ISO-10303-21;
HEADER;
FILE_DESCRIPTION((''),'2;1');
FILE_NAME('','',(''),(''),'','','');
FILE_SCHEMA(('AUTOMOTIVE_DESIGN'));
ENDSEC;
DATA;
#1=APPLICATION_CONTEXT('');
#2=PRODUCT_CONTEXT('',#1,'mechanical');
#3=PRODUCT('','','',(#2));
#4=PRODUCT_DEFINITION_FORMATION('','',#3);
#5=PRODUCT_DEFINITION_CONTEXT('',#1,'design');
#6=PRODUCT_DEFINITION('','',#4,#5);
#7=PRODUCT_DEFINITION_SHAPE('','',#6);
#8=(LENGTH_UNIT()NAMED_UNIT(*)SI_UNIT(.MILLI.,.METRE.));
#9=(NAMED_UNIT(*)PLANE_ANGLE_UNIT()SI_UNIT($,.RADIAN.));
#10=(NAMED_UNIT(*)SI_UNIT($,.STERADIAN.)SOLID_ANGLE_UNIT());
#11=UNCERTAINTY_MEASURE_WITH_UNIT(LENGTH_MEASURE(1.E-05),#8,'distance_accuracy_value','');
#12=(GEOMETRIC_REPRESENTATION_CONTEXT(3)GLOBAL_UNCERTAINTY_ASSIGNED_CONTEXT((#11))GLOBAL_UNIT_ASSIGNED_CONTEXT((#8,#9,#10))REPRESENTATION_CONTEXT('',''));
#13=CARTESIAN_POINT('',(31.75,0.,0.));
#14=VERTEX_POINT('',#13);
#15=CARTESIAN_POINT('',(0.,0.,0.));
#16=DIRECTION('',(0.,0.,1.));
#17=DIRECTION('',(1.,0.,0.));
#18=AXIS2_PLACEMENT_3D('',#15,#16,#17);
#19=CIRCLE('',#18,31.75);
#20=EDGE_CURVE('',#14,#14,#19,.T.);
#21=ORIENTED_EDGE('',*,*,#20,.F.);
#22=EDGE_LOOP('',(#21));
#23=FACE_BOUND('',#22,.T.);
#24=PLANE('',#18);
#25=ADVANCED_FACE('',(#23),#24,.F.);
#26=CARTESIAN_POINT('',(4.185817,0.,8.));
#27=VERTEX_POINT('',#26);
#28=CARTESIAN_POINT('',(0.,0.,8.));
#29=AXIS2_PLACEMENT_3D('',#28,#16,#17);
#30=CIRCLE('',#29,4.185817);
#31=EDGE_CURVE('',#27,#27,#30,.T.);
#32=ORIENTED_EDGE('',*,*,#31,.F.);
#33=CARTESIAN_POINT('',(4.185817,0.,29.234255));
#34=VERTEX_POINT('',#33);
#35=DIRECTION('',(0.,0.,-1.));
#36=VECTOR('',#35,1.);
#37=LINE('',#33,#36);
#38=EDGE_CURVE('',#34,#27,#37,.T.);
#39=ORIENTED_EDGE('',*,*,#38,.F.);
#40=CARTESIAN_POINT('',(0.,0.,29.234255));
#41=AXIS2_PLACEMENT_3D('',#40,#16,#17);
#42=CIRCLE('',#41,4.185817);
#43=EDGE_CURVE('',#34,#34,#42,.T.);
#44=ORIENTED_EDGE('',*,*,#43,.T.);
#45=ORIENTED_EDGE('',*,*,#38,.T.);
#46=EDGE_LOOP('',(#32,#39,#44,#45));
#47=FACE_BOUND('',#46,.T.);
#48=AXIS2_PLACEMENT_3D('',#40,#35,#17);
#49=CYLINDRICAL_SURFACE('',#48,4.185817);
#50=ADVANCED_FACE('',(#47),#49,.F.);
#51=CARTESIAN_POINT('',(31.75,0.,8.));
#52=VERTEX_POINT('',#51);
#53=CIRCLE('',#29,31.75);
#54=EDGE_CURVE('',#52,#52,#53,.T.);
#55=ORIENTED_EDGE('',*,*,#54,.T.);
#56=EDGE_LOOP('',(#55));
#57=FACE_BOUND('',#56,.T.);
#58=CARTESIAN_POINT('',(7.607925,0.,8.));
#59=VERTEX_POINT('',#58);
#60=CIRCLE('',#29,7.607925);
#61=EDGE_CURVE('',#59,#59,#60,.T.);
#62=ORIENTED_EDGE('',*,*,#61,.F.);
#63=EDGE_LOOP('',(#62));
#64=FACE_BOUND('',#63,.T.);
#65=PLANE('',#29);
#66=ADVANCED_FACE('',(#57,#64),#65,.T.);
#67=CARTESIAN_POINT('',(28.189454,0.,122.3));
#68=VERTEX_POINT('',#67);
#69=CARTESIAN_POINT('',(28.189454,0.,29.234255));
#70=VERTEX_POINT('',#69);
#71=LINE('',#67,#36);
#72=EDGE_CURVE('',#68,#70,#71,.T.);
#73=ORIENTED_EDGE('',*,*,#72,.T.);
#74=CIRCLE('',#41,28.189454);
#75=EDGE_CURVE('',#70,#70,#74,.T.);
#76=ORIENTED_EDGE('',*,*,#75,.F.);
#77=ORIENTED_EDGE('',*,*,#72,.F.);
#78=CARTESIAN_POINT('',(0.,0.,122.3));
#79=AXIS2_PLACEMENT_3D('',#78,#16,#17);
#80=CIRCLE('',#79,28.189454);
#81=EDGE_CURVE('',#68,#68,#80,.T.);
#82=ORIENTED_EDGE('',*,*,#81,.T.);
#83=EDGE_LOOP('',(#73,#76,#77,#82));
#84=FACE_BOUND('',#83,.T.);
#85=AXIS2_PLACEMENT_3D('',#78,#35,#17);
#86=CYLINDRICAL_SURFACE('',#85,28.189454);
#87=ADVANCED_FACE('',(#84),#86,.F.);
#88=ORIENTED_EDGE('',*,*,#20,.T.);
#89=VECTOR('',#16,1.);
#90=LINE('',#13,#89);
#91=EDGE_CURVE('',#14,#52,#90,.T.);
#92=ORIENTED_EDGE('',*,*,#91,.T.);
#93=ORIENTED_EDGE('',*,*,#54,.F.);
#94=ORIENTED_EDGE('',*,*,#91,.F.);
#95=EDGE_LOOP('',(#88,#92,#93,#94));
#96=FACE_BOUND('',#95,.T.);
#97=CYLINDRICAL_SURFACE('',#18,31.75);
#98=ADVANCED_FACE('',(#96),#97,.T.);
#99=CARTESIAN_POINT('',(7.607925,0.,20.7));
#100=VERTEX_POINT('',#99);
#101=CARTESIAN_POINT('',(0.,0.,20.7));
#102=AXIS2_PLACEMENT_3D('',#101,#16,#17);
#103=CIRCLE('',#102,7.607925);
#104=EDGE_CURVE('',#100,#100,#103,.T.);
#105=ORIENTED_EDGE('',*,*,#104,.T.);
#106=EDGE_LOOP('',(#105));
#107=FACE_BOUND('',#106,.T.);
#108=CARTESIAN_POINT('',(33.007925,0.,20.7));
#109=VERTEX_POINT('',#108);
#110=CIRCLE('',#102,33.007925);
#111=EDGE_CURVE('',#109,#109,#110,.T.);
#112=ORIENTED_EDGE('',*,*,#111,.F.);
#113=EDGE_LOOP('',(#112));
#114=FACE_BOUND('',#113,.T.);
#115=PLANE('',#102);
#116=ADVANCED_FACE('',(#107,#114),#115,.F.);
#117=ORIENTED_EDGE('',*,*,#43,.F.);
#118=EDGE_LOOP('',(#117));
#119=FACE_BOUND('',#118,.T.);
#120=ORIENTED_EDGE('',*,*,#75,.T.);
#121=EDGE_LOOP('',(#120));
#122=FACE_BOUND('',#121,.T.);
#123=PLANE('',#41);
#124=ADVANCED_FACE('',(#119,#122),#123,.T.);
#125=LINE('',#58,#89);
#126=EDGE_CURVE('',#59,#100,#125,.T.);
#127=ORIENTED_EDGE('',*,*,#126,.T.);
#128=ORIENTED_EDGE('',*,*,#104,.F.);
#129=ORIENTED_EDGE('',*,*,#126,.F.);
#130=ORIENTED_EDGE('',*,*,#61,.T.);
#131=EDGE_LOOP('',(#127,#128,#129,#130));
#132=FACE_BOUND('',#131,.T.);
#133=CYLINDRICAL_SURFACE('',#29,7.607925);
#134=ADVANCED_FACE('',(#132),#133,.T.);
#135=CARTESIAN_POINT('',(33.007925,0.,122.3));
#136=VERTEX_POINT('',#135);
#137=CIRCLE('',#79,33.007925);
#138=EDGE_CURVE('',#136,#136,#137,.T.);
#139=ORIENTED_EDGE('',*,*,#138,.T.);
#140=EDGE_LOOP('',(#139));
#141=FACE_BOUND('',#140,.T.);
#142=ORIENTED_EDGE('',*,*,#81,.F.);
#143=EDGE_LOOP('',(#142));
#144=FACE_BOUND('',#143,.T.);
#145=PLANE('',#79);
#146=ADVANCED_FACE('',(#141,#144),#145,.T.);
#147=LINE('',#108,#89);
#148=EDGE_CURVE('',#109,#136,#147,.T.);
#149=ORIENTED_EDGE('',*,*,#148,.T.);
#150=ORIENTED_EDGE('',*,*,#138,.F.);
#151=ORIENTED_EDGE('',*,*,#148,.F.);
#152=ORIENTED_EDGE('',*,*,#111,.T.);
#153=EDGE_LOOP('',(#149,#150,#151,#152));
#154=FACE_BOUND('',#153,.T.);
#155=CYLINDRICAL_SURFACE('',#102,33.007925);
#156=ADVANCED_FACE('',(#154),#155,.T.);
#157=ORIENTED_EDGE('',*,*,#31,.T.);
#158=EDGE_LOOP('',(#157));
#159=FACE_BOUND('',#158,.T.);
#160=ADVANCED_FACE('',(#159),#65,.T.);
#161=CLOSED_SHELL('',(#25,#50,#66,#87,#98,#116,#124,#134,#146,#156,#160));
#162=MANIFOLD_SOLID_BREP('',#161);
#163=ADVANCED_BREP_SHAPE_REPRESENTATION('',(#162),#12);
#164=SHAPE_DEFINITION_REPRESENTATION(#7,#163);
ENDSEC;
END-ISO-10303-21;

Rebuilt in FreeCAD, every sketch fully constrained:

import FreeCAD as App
import Part
import Sketcher
from FreeCAD import Vector
Q = App.Units.Quantity


def add_polygon(sketch, points):
    """Adds a closed chain of lines whose ends are joined by coincident constraints."""
    first, n = sketch.GeometryCount, len(points)
    for a, b in zip(points, points[1:] + points[:1]):
        sketch.addGeometry(Part.LineSegment(App.Vector(*a, 0), App.Vector(*b, 0)), False)
    for i in range(n):
        sketch.addConstraint(Sketcher.Constraint("Coincident", first + i, 2, first + (i + 1) % n, 1))

doc = App.newDocument("Part")
params = doc.addObject("Spreadsheet::Sheet", "Params")
for row, (alias, value) in enumerate([
    ("sketch1_width", "1 in"),
    ("sketch1_height", "4 in"),
    ("sketch1_height2", "0.5 in"),
    ("sketch1_width2", "1.25 in"),
    ("revolution_angle", "360 deg"),
], start=1):
    params.set(f"A{row}", alias)
    params.set(f"B{row}", "=" + value)
    params.setAlias(f"B{row}", alias)

body = doc.addObject("PartDesign::Body", "Body")

sketch1 = body.newObject("Sketcher::SketchObject", "Sketch")
sketch1.AttachmentSupport = (doc.getObject("XZ_Plane"), [""])
sketch1.MapMode = "FlatFace"
add_polygon(sketch1, [(0, 8), (0, 0), (31.75, 0), (31.75, 8), (7.607925, 8), (7.607925, 20.7), (33.007925, 20.7), (33.007925, 122.3), (28.189454, 122.3), (28.189454, 29.234255), (4.185817, 29.234255), (4.185817, 8)])
sketch1.addConstraint([
    Sketcher.Constraint("Vertical", 0),
    Sketcher.Constraint("Horizontal", 1),
    Sketcher.Constraint("Vertical", 2),
    Sketcher.Constraint("Horizontal", 3),
    Sketcher.Constraint("Vertical", 4),
    Sketcher.Constraint("Horizontal", 5),
    Sketcher.Constraint("Vertical", 6),
    Sketcher.Constraint("Horizontal", 7),
    Sketcher.Constraint("Vertical", 8),
    Sketcher.Constraint("Horizontal", 9),
    Sketcher.Constraint("Vertical", 10),
    Sketcher.Constraint("Horizontal", 11),
    Sketcher.Constraint("Coincident", 0, 2, -1, 1),
    Sketcher.Constraint("Horizontal", 3, 2, 10, 2),
    Sketcher.Constraint("DistanceX", 5, 1, 5, 2, Q("1 in")),
    Sketcher.Constraint("DistanceY", 6, 1, 6, 2, Q("4 in")),
    Sketcher.Constraint("DistanceY", 4, 1, 4, 2, Q("0.5 in")),
    Sketcher.Constraint("DistanceX", 1, 1, 1, 2, Q("1.25 in")),
    Sketcher.Constraint("DistanceY", 0, 2, 0, 1, 8.0),
    Sketcher.Constraint("DistanceX", 7, 2, 7, 1, 4.818471),
    Sketcher.Constraint("DistanceX", 3, 2, 3, 1, 24.142075),
    Sketcher.Constraint("DistanceX", 9, 2, 9, 1, 24.003637),
    Sketcher.Constraint("DistanceY", 8, 2, 8, 1, 93.065745),
])
sketch1.setExpression("Constraints[26]", "Params.sketch1_width")
sketch1.setExpression("Constraints[27]", "Params.sketch1_height")
sketch1.setExpression("Constraints[28]", "Params.sketch1_height2")
sketch1.setExpression("Constraints[29]", "Params.sketch1_width2")
revolution = body.newObject("PartDesign::Revolution", "Revolution")
revolution.Profile = sketch1
revolution.ReferenceAxis = (sketch1, ["V_Axis"])
revolution.setExpression("Angle", "Params.revolution_angle")

doc.recompute()
